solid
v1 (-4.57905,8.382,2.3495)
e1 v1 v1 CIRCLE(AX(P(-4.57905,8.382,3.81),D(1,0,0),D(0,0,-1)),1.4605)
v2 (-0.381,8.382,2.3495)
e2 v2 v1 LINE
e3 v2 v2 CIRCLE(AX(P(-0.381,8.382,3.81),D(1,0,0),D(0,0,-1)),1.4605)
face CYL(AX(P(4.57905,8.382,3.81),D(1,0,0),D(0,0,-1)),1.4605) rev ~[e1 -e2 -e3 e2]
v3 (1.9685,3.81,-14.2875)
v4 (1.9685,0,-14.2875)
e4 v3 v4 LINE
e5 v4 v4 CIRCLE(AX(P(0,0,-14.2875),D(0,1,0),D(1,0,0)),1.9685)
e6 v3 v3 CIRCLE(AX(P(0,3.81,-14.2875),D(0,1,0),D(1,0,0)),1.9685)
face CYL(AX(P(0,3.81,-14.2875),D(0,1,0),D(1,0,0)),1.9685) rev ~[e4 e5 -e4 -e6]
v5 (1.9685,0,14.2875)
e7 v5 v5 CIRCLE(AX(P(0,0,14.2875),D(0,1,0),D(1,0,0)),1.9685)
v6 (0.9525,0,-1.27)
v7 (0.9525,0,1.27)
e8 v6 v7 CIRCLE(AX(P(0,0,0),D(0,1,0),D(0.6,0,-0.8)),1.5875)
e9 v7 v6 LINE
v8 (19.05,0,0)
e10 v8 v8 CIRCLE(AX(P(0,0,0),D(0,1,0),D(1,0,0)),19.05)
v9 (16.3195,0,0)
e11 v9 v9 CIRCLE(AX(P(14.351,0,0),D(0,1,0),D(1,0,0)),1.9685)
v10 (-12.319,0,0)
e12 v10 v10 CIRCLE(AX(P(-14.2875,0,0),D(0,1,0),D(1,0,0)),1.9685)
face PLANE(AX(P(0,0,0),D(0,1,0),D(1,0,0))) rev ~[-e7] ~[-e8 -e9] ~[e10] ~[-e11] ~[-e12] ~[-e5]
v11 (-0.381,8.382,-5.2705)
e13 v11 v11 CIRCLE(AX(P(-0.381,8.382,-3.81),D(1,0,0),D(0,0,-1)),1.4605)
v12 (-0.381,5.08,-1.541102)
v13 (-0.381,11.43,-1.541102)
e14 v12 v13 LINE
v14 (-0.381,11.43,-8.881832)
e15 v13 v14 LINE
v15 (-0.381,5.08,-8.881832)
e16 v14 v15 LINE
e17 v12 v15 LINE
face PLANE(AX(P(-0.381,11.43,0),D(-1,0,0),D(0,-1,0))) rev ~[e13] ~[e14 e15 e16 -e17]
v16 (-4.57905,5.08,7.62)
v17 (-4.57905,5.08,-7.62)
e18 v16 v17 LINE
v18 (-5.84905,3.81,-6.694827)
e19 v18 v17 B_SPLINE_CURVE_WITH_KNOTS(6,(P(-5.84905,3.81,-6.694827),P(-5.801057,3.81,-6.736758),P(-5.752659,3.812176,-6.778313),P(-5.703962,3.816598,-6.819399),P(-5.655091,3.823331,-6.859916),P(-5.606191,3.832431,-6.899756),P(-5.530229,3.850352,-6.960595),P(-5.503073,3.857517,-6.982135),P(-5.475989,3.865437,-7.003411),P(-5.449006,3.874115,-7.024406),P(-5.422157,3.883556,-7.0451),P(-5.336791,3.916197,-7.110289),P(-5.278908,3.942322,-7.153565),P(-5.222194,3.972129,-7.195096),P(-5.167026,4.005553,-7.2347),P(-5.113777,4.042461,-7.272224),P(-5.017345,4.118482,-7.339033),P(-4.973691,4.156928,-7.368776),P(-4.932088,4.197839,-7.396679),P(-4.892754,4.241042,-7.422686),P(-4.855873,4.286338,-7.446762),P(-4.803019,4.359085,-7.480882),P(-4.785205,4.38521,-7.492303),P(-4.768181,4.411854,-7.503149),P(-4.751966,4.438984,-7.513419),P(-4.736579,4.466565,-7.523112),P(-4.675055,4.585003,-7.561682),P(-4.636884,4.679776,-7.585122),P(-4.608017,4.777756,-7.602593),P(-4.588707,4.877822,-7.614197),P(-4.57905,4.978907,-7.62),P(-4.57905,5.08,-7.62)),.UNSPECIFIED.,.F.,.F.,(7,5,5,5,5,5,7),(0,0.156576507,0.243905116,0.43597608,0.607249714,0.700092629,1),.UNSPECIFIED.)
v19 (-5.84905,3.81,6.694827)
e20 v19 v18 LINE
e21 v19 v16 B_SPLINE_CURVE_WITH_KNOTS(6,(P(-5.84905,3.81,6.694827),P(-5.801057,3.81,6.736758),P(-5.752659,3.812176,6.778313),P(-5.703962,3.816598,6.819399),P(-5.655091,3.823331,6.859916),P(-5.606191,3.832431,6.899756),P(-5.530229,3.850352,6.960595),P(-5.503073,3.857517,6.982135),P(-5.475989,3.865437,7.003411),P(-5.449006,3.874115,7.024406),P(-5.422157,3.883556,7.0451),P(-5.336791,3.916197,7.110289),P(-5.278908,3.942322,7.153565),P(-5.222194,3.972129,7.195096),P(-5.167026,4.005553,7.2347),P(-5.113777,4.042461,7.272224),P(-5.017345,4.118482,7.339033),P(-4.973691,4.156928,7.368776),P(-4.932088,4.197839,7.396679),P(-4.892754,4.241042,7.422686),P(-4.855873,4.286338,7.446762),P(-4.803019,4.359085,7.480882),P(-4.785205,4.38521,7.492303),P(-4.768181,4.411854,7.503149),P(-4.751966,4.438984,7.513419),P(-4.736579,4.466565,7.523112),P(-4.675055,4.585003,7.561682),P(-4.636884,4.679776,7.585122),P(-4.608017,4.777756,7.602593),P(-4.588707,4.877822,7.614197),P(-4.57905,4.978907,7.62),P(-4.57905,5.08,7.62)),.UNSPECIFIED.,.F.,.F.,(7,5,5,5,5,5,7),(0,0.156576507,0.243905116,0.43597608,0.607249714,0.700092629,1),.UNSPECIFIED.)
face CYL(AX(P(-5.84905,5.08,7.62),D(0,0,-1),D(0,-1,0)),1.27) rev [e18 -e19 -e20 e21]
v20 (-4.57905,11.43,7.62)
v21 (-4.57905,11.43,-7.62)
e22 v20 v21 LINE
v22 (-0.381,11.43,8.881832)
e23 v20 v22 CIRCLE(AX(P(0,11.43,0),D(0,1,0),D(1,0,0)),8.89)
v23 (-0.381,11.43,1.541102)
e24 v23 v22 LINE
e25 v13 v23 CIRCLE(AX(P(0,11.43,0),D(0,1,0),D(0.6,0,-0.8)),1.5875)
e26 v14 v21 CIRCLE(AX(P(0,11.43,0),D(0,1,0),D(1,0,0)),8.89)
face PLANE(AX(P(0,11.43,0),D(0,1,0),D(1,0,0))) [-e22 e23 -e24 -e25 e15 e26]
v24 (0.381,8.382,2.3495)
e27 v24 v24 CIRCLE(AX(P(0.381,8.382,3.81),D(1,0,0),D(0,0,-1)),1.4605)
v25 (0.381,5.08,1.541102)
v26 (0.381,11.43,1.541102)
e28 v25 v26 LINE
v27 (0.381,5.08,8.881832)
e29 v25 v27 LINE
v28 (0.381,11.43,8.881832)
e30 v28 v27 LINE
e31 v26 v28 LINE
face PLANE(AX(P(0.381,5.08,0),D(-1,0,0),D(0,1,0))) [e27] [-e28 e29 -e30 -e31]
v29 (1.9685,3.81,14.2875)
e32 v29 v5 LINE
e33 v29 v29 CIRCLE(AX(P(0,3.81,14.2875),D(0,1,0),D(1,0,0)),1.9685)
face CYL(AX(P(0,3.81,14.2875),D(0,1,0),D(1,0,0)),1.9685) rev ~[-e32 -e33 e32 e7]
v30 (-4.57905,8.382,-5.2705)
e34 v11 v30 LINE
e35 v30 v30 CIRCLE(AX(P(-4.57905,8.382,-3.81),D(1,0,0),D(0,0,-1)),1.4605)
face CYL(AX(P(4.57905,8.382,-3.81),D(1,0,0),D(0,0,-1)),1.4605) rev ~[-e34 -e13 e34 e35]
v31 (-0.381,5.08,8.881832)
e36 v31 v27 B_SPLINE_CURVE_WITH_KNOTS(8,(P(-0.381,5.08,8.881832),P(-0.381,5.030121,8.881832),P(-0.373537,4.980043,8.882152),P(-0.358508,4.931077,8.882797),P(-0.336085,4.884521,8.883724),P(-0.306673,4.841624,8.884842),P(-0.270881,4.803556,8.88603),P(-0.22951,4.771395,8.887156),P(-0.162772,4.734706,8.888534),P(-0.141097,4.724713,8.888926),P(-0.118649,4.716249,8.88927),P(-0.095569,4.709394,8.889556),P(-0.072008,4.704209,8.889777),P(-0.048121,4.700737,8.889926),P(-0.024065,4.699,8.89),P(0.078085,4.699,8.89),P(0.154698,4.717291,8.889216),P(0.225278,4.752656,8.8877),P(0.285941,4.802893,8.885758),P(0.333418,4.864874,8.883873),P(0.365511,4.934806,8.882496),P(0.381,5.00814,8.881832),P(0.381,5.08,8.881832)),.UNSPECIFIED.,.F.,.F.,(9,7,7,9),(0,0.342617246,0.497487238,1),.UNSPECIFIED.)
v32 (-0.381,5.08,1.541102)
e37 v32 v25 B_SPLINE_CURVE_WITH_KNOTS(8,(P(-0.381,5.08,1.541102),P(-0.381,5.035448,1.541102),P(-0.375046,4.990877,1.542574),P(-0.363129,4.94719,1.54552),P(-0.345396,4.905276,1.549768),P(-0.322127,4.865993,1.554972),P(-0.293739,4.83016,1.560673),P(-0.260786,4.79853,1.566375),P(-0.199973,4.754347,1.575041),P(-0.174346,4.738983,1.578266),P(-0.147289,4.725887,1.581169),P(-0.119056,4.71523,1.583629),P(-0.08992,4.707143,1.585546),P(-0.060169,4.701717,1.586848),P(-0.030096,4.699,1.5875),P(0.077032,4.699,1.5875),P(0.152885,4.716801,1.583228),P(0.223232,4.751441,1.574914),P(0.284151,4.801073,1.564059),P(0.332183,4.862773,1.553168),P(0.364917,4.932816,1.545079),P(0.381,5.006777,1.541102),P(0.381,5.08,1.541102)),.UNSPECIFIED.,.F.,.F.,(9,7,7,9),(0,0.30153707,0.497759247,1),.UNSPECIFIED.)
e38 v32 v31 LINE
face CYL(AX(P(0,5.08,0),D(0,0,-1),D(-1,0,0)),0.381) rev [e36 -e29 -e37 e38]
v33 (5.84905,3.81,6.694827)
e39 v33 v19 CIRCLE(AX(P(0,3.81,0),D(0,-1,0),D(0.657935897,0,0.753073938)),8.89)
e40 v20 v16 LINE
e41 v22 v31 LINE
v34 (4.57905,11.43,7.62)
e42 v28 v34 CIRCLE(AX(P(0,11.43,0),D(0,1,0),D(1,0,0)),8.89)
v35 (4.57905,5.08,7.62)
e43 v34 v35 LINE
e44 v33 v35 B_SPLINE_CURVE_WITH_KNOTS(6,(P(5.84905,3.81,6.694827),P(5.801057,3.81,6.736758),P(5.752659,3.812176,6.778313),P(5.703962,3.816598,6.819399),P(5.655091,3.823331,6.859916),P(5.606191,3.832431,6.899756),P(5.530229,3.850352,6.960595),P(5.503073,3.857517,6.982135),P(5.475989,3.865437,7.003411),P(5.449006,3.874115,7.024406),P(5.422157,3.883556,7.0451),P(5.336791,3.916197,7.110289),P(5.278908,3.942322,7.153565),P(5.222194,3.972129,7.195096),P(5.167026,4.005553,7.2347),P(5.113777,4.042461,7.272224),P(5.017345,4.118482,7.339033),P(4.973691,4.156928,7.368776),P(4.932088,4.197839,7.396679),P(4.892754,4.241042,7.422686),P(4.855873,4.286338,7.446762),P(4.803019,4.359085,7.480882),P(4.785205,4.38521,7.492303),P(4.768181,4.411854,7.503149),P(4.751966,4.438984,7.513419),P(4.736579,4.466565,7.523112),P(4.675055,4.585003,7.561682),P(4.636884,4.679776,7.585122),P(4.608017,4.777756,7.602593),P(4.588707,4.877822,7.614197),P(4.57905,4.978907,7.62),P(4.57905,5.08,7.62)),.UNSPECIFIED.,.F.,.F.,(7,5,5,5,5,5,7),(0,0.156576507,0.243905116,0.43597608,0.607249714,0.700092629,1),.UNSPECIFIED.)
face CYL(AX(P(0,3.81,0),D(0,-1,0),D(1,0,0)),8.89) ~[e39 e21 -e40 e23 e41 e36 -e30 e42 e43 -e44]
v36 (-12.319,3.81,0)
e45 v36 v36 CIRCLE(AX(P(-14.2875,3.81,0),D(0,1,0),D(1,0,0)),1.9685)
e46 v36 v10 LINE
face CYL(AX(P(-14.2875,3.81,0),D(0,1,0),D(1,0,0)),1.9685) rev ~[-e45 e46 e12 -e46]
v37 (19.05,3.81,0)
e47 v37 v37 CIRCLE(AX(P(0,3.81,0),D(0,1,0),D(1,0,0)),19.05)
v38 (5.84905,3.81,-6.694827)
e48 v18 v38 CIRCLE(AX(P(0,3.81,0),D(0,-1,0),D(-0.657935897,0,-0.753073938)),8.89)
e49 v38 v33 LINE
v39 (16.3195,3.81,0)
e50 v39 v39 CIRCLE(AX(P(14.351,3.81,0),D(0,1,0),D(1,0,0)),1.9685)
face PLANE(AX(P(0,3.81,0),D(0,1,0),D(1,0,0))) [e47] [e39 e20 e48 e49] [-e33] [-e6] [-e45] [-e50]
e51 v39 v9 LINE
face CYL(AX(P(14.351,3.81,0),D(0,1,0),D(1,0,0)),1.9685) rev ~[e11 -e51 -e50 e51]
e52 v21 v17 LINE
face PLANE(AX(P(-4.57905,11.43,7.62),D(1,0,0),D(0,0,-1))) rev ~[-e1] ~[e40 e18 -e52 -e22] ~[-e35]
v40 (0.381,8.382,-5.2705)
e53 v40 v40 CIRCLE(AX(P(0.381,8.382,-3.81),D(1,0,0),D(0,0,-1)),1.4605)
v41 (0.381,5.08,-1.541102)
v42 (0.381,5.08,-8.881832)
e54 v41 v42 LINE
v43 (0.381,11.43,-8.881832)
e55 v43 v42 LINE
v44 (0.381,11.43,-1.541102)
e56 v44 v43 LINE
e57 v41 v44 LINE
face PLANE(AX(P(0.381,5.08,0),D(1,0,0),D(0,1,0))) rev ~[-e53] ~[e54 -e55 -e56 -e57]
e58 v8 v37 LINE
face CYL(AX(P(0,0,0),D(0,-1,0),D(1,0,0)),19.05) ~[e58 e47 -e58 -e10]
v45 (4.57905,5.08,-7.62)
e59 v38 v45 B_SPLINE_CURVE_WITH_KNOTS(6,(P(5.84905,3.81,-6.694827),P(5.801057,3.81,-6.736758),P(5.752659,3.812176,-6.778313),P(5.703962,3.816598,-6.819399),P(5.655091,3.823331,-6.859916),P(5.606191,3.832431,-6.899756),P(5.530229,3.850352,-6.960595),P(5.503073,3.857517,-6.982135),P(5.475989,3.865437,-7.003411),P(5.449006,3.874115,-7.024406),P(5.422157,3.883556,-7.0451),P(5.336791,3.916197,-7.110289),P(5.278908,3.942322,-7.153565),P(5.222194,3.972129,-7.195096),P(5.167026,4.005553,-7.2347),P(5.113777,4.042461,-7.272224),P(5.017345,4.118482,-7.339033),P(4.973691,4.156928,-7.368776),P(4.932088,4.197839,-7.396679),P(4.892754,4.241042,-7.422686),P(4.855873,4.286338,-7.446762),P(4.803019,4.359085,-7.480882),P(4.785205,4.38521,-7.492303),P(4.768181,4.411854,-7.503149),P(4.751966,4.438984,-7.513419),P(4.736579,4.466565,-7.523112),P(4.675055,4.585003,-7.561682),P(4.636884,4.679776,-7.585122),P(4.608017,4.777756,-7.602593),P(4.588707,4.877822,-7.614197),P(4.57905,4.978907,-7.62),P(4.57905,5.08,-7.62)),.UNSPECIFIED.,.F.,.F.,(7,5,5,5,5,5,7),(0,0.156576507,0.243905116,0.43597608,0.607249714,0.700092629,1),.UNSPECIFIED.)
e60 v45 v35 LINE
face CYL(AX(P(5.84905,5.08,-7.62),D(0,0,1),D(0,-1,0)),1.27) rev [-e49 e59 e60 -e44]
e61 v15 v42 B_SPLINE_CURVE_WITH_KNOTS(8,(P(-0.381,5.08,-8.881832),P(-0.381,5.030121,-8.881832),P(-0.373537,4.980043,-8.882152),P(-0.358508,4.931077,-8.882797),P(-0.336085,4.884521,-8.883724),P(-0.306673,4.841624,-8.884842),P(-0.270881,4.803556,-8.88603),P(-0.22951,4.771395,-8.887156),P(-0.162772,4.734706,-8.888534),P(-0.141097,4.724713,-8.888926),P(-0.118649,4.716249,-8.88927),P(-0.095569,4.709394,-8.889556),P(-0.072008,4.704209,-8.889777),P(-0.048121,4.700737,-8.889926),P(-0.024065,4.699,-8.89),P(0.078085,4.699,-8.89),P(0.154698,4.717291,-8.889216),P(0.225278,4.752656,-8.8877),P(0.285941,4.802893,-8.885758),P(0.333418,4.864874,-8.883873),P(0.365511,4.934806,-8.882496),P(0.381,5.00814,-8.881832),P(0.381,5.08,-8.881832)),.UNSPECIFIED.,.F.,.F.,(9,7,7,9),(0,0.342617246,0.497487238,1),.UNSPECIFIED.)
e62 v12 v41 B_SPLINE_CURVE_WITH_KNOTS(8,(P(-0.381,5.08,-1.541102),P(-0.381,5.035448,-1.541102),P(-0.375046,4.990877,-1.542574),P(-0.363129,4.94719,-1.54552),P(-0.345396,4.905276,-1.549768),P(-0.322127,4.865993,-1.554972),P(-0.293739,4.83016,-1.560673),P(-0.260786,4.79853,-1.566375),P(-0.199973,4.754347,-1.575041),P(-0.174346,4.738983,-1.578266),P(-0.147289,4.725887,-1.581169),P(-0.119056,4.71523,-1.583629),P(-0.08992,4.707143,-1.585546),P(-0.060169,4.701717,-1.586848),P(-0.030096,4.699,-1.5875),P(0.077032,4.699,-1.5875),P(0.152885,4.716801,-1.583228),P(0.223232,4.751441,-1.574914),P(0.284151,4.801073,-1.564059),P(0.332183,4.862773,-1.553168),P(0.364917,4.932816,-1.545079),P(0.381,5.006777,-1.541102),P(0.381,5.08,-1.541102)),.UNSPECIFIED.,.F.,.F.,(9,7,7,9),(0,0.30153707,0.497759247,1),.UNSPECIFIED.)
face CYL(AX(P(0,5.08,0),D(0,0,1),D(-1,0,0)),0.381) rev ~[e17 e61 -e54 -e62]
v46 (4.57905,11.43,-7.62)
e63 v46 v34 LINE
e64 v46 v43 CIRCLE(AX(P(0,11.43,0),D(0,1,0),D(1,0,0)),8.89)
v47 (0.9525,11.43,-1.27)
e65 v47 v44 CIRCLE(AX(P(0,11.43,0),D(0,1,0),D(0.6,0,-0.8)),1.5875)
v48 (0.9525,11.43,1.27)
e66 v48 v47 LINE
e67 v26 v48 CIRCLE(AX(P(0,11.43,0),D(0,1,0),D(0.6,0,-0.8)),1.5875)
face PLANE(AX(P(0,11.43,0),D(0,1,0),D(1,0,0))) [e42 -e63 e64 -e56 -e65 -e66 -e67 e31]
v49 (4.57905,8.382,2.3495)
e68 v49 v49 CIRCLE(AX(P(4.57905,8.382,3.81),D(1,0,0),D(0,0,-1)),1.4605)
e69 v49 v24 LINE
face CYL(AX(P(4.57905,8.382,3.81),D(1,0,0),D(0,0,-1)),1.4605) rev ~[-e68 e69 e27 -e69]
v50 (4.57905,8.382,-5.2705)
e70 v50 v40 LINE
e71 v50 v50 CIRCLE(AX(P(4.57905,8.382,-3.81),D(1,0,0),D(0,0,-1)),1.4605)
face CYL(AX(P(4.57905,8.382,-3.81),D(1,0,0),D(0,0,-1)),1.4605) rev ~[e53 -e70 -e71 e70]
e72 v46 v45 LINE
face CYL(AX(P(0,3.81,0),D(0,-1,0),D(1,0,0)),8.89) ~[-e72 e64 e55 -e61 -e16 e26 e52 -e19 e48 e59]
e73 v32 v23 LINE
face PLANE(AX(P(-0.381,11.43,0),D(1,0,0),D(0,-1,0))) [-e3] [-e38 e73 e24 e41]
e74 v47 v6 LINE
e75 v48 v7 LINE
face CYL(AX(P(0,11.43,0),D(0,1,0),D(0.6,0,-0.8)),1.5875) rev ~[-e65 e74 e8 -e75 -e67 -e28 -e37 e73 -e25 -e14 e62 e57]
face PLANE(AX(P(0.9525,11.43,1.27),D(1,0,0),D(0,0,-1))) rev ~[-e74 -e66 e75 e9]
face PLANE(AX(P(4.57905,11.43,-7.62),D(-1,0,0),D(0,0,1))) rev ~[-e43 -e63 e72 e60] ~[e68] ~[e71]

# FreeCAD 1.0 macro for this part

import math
import FreeCAD as App
import Part
import Sketcher
from FreeCAD import Vector
Q = App.Units.Quantity


def edges_at(feature, points):
    """Names of the edges that pass closest to the given points."""
    edges = feature.Shape.Edges
    near = lambda p: min(range(len(edges)), key=lambda i: edges[i].distToShape(Part.Vertex(*p))[0])
    return sorted({f"Edge{near(p) + 1}" for p in points})

doc = App.newDocument("Part")
params = doc.addObject("Spreadsheet::Sheet", "Params")
for row, (alias, value) in enumerate([
    ("sketch1_diameter", "1.5 in"),
    ("pad1_length", "0.15 in"),
    ("sketch2_diameter", "0.7 in"),
    ("pad2_length", "0.3 in"),
    ("sketch3_height", "0.1 in"),
    ("sketch3_radius", "0.0625 in"),
    ("sketch4_radius", "0.015 in"),
    ("sketch4_height", "0.25 in"),
    ("sketch5_radius", "0.35 in"),
    ("sketch5_height", "0.6 in"),
    ("pocket3_length", "0.3 in"),
    ("fillet_radius", "0.05 in"),
    ("sketch6_diameter", "0.115 in"),
    ("sketch7_diameter", "0.155 in"),
], start=1):
    params.set(f"A{row}", alias)
    params.set(f"B{row}", "=" + value)
    params.setAlias(f"B{row}", alias)

body = doc.addObject("PartDesign::Body", "Body")

sketch1 = body.newObject("Sketcher::SketchObject", "Sketch")
sketch1.AttachmentSupport = (doc.getObject("XZ_Plane"), [""])
sketch1.MapMode = "FlatFace"
sketch1.addGeometry(Part.Circle(Vector(0, 0, 0), Vector(0, 0, 1), 19.05), False)
sketch1.addConstraint([
    Sketcher.Constraint("Coincident", 0, 3, -1, 1),
    Sketcher.Constraint("Diameter", 0, Q("1.5 in")),
])
sketch1.setExpression("Constraints[1]", "Params.sketch1_diameter")
pad1 = body.newObject("PartDesign::Pad", "Pad")
pad1.Profile = sketch1
pad1.setExpression("Length", "Params.pad1_length")
pad1.Reversed = True

sketch2 = body.newObject("Sketcher::SketchObject", "Sketch001")
sketch2.AttachmentSupport = (doc.getObject("XZ_Plane"), [""])
sketch2.MapMode = "FlatFace"
sketch2.AttachmentOffset = App.Placement(Vector(0, 0, -0.15 * 25.4), App.Rotation())
sketch2.addGeometry(Part.Circle(Vector(0, 0, 0), Vector(0, 0, 1), 8.89), False)
sketch2.addConstraint([
    Sketcher.Constraint("Coincident", 0, 3, -1, 1),
    Sketcher.Constraint("Diameter", 0, Q("0.7 in")),
])
sketch2.setExpression("Constraints[1]", "Params.sketch2_diameter")
pad2 = body.newObject("PartDesign::Pad", "Pad001")
pad2.Profile = sketch2
pad2.setExpression("Length", "Params.pad2_length")
pad2.Reversed = True

sketch3 = body.newObject("Sketcher::SketchObject", "Sketch002")
sketch3.AttachmentSupport = (doc.getObject("XZ_Plane"), [""])
sketch3.MapMode = "FlatFace"
sketch3.AttachmentOffset = App.Placement(Vector(0, 0, -0.45 * 25.4), App.Rotation())
sketch3.addGeometry([
    Part.LineSegment(Vector(0.9525, 1.27, 0), Vector(0.9525, -1.27, 0)),
    Part.ArcOfCircle(Part.Circle(Vector(0, 0, 0), Vector(0, 0, 1), 1.5875), math.radians(53.130102), math.radians(306.869898)),
], False)
sketch3.addConstraint([
    Sketcher.Constraint("Coincident", 0, 1, 1, 1),
    Sketcher.Constraint("Coincident", 1, 2, 0, 2),
    Sketcher.Constraint("Vertical", 0),
    Sketcher.Constraint("Coincident", 1, 3, -1, 1),
    Sketcher.Constraint("DistanceY", 0, 2, 0, 1, Q("0.1 in")),
    Sketcher.Constraint("Radius", 1, Q("0.0625 in")),
])
sketch3.setExpression("Constraints[4]", "Params.sketch3_height")
sketch3.setExpression("Constraints[5]", "Params.sketch3_radius")
pocket1 = body.newObject("PartDesign::Pocket", "Pocket")
pocket1.Profile = sketch3
pocket1.Type = "ThroughAll"
pocket1.Reversed = True

sketch4 = body.newObject("Sketcher::SketchObject", "Sketch003")
sketch4.AttachmentSupport = (doc.getObject("XY_Plane"), [""])
sketch4.MapMode = "FlatFace"
sketch4.addGeometry([
    Part.LineSegment(Vector(-0.381, 11.43, 0), Vector(-0.381, 5.08, 0)),
    Part.ArcOfCircle(Part.Circle(Vector(0, 5.08, 0), Vector(0, 0, 1), 0.381), math.radians(180), math.radians(360)),
    Part.LineSegment(Vector(0.381, 5.08, 0), Vector(0.381, 11.43, 0)),
    Part.LineSegment(Vector(0.381, 11.43, 0), Vector(-0.381, 11.43, 0)),
], False)
sketch4.addConstraint([
    Sketcher.Constraint("Tangent", 0, 2, 1, 1),
    Sketcher.Constraint("Tangent", 1, 2, 2, 1),
    Sketcher.Constraint("Coincident", 2, 2, 3, 1),
    Sketcher.Constraint("Coincident", 3, 2, 0, 1),
    Sketcher.Constraint("Vertical", 0),
    Sketcher.Constraint("Vertical", 2),
    Sketcher.Constraint("Horizontal", 3),
    Sketcher.Constraint("PointOnObject", 1, 3, -2),
    Sketcher.Constraint("Radius", 1, Q("0.015 in")),
    Sketcher.Constraint("DistanceY", 0, 2, 0, 1, Q("0.25 in")),
    Sketcher.Constraint("DistanceY", -1, 1, 1, 3, Q("0.2 in")),
])
sketch4.setExpression("Constraints[8]", "Params.sketch4_radius")
sketch4.setExpression("Constraints[9]", "Params.sketch4_height")
pocket2 = body.newObject("PartDesign::Pocket", "Pocket001")
pocket2.Profile = sketch4
pocket2.Type = "ThroughAll"
pocket2.Midplane = True

sketch5 = body.newObject("Sketcher::SketchObject", "Sketch004")
sketch5.AttachmentSupport = (doc.getObject("XZ_Plane"), [""])
sketch5.MapMode = "FlatFace"
sketch5.AttachmentOffset = App.Placement(Vector(0, 0, -0.45 * 25.4), App.Rotation())
sketch5.addGeometry([
    Part.LineSegment(Vector(4.57905, -7.62, 0), Vector(4.57905, 7.62, 0)),
    Part.ArcOfCircle(Part.Circle(Vector(0, 0, 0), Vector(0, 0, 1), 8.89), math.radians(-58.997281), math.radians(58.997281)),
    Part.LineSegment(Vector(-4.57905, 7.62, 0), Vector(-4.57905, -7.62, 0)),
    Part.ArcOfCircle(Part.Circle(Vector(0, 0, 0), Vector(0, 0, 1), 8.89), math.radians(121.002719), math.radians(238.997281)),
], False)
sketch5.addConstraint([
    Sketcher.Constraint("Coincident", 0, 1, 1, 1),
    Sketcher.Constraint("Coincident", 1, 2, 0, 2),
    Sketcher.Constraint("Coincident", 2, 1, 3, 1),
    Sketcher.Constraint("Coincident", 3, 2, 2, 2),
    Sketcher.Constraint("Vertical", 0),
    Sketcher.Constraint("Vertical", 2),
    Sketcher.Constraint("Coincident", 1, 3, -1, 1),
    Sketcher.Constraint("Coincident", 3, 3, -1, 1),
    Sketcher.Constraint("Equal", 1, 3),
    Sketcher.Constraint("Horizontal", 1, 2, 2, 1),
    Sketcher.Constraint("Radius", 1, Q("0.35 in")),
    Sketcher.Constraint("DistanceY", 0, 1, 0, 2, Q("0.6 in")),
])
sketch5.setExpression("Constraints[10]", "Params.sketch5_radius")
sketch5.setExpression("Constraints[11]", "Params.sketch5_height")
pocket3 = body.newObject("PartDesign::Pocket", "Pocket002")
pocket3.Profile = sketch5
pocket3.setExpression("Length", "Params.pocket3_length")
pocket3.Reversed = True
doc.recompute()

fillet = body.newObject("PartDesign::Fillet", "Fillet")
fillet.Base = (pocket3, edges_at(pocket3, [(4.579, 3.81, 0), (-4.579, 3.81, 0)]))
fillet.setExpression("Radius", "Params.fillet_radius")

sketch6 = body.newObject("Sketcher::SketchObject", "Sketch005")
sketch6.AttachmentSupport = (doc.getObject("YZ_Plane"), [""])
sketch6.MapMode = "FlatFace"
sketch6.AttachmentOffset = App.Placement(Vector(0, 0, 4.57905), App.Rotation())
sketch6.addGeometry([
    Part.Circle(Vector(8.382, 3.81, 0), Vector(0, 0, 1), 1.4605),
    Part.Circle(Vector(8.382, -3.81, 0), Vector(0, 0, 1), 1.4605),
], False)
sketch6.addConstraint([
    Sketcher.Constraint("Equal", 0, 1),
    Sketcher.Constraint("Symmetric", 0, 3, 1, 3, -1),
    Sketcher.Constraint("Diameter", 0, Q("0.115 in")),
    Sketcher.Constraint("DistanceY", 1, 3, 0, 3, Q("0.3 in")),
    Sketcher.Constraint("DistanceX", -1, 1, 0, 3, Q("0.33 in")),
])
sketch6.setExpression("Constraints[2]", "Params.sketch6_diameter")
pocket4 = body.newObject("PartDesign::Pocket", "Pocket003")
pocket4.Profile = sketch6
pocket4.Type = "ThroughAll"

sketch7 = body.newObject("Sketcher::SketchObject", "Sketch006")
sketch7.AttachmentSupport = (doc.getObject("XZ_Plane"), [""])
sketch7.MapMode = "FlatFace"
sketch7.AttachmentOffset = App.Placement(Vector(0, 0, -0.15 * 25.4), App.Rotation())
sketch7.addGeometry([
    Part.Circle(Vector(-14.2875, 0, 0), Vector(0, 0, 1), 1.9685),
    Part.Circle(Vector(0, -14.2875, 0), Vector(0, 0, 1), 1.9685),
    Part.Circle(Vector(14.351, 0, 0), Vector(0, 0, 1), 1.9685),
    Part.Circle(Vector(0, 14.2875, 0), Vector(0, 0, 1), 1.9685),
], False)
sketch7.addConstraint([
    Sketcher.Constraint("Equal", 0, 1),
    Sketcher.Constraint("Equal", 1, 2),
    Sketcher.Constraint("Equal", 2, 3),
    Sketcher.Constraint("Symmetric", 1, 3, 3, 3, -1, 1),
    Sketcher.Constraint("PointOnObject", 0, 3, -1),
    Sketcher.Constraint("PointOnObject", 1, 3, -2),
    Sketcher.Constraint("PointOnObject", 2, 3, -1),
    Sketcher.Constraint("Diameter", 0, Q("0.155 in")),
    Sketcher.Constraint("DistanceX", 0, 3, -1, 1, Q("0.5625 in")),
    Sketcher.Constraint("DistanceY", 1, 3, -1, 1, Q("0.5625 in")),
    Sketcher.Constraint("DistanceX", -1, 1, 2, 3, Q("0.565 in")),
])
sketch7.setExpression("Constraints[7]", "Params.sketch7_diameter")
pocket5 = body.newObject("PartDesign::Pocket", "Pocket004")
pocket5.Profile = sketch7
pocket5.Type = "ThroughAll"
pocket5.Reversed = True

doc.recompute()
